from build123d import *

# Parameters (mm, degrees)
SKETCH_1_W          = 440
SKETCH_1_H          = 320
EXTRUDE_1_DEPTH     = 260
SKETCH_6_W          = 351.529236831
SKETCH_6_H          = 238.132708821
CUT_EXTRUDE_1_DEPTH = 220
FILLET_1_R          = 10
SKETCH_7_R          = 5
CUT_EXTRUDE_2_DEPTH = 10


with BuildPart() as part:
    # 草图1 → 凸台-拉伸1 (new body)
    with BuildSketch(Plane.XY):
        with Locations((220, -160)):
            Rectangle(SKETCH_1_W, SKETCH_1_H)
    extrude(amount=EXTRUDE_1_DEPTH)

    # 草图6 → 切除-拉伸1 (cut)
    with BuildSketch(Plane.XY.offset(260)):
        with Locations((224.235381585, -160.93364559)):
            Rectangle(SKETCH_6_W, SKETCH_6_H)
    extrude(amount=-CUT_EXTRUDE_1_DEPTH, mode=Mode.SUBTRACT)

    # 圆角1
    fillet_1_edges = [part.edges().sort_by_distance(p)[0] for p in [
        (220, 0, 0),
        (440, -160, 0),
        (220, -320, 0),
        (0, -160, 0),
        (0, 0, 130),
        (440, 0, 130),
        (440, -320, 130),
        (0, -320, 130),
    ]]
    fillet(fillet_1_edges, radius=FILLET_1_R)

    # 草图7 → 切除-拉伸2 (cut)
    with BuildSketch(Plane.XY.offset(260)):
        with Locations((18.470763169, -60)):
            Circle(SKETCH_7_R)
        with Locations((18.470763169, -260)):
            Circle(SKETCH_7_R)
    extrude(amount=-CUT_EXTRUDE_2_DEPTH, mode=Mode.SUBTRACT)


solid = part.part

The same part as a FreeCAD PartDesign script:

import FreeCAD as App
import Part
import Sketcher
Q = App.Units.Quantity


def edges_at(feature, points):
    """Names of the edges that pass closest to the given points."""
    edges = feature.Shape.Edges
    near = lambda p: min(range(len(edges)), key=lambda i: edges[i].distToShape(Part.Vertex(*p))[0])
    return sorted({f"Edge{near(p) + 1}" for p in points})

doc = App.newDocument("Part")
params = doc.addObject("Spreadsheet::Sheet", "Params")
for row, (alias, value) in enumerate([
    ("sketch1_width", "440 mm"),
    ("sketch1_height", "320 mm"),
    ("pad1_length", "260 mm"),
    ("pocket1_length", "220 mm"),
    ("fillet_radius", "10 mm"),
    ("sketch3_diameter", "10 mm"),
    ("pocket2_length", "10 mm"),
], start=1):
    params.set(f"A{row}", alias)
    params.set(f"B{row}", "=" + value)
    params.setAlias(f"B{row}", alias)

body = doc.addObject("PartDesign::Body", "Body")

# Sketch on XY plane
sketch1 = body.newObject("Sketcher::SketchObject", "Sketch")
sketch1.AttachmentSupport = (doc.getObject("XY_Plane"), [""])
sketch1.MapMode = "FlatFace"
sketch1.addGeometry(Part.LineSegment(App.Vector(0, 0, 0), App.Vector(0, -320, 0)), False)
sketch1.addGeometry(Part.LineSegment(App.Vector(0, -320, 0), App.Vector(440, -320, 0)), False)
sketch1.addGeometry(Part.LineSegment(App.Vector(440, -320, 0), App.Vector(440, 0, 0)), False)
sketch1.addGeometry(Part.LineSegment(App.Vector(440, 0, 0), App.Vector(0, 0, 0)), False)
sketch1.addConstraint(Sketcher.Constraint("Coincident", 0, 2, 1, 1))
sketch1.addConstraint(Sketcher.Constraint("Coincident", 1, 2, 2, 1))
sketch1.addConstraint(Sketcher.Constraint("Coincident", 2, 2, 3, 1))
sketch1.addConstraint(Sketcher.Constraint("Coincident", 3, 2, 0, 1))
sketch1.addConstraint(Sketcher.Constraint("Vertical", 0))
sketch1.addConstraint(Sketcher.Constraint("Horizontal", 1))
sketch1.addConstraint(Sketcher.Constraint("Vertical", 2))
sketch1.addConstraint(Sketcher.Constraint("Horizontal", 3))
sketch1.addConstraint(Sketcher.Constraint("Coincident", 3, 2, -1, 1))
sketch1.addConstraint(Sketcher.Constraint("DistanceX", 1, 1, 1, 2, Q("440 mm")))
sketch1.addConstraint(Sketcher.Constraint("DistanceY", 0, 2, 0, 1, Q("320 mm")))
sketch1.setExpression("Constraints[9]", "Params.sketch1_width")
sketch1.setExpression("Constraints[10]", "Params.sketch1_height")
pad1 = body.newObject("PartDesign::Pad", "Pad")
pad1.Profile = sketch1
pad1.setExpression("Length", "Params.pad1_length")

# Sketch on XY plane
sketch2 = body.newObject("Sketcher::SketchObject", "Sketch001")
sketch2.AttachmentSupport = (doc.getObject("XY_Plane"), [""])
sketch2.MapMode = "FlatFace"
sketch2.AttachmentOffset = App.Placement(App.Vector(0, 0, 260), App.Rotation())
sketch2.addGeometry(Part.LineSegment(App.Vector(48, -42, 0), App.Vector(48, -280, 0)), False)
sketch2.addGeometry(Part.LineSegment(App.Vector(48, -280, 0), App.Vector(400, -280, 0)), False)
sketch2.addGeometry(Part.LineSegment(App.Vector(400, -280, 0), App.Vector(400, -42, 0)), False)
sketch2.addGeometry(Part.LineSegment(App.Vector(400, -42, 0), App.Vector(48, -42, 0)), False)
sketch2.addConstraint(Sketcher.Constraint("Coincident", 0, 2, 1, 1))
sketch2.addConstraint(Sketcher.Constraint("Coincident", 1, 2, 2, 1))
sketch2.addConstraint(Sketcher.Constraint("Coincident", 2, 2, 3, 1))
sketch2.addConstraint(Sketcher.Constraint("Coincident", 3, 2, 0, 1))
sketch2.addConstraint(Sketcher.Constraint("Vertical", 0))
sketch2.addConstraint(Sketcher.Constraint("Horizontal", 1))
sketch2.addConstraint(Sketcher.Constraint("Vertical", 2))
sketch2.addConstraint(Sketcher.Constraint("Horizontal", 3))
sketch2.addConstraint(Sketcher.Constraint("DistanceY", 0, 2, -1, 1, Q("280 mm")))
sketch2.addConstraint(Sketcher.Constraint("DistanceX", -1, 1, 1, 2, Q("400 mm")))
sketch2.addConstraint(Sketcher.Constraint("DistanceY", 0, 2, 0, 1, Q("238.132709 mm")))
sketch2.addConstraint(Sketcher.Constraint("DistanceX", 1, 1, 1, 2, Q("351.529237 mm")))
pocket1 = body.newObject("PartDesign::Pocket", "Pocket")
pocket1.Profile = sketch2
pocket1.setExpression("Length", "Params.pocket1_length")
doc.recompute()

fillet = body.newObject("PartDesign::Fillet", "Fillet")
fillet.Base = (pocket1, edges_at(pocket1, [
    (220, 0, 0),
    (440, -160, 0),
    (220, -320, 0),
    (0, -160, 0),
    (0, 0, 130),
    (440, 0, 130),
    (440, -320, 130),
    (0, -320, 130),
]))
fillet.setExpression("Radius", "Params.fillet_radius")

# Sketch on XY plane
sketch3 = body.newObject("Sketcher::SketchObject", "Sketch002")
sketch3.AttachmentSupport = (doc.getObject("XY_Plane"), [""])
sketch3.MapMode = "FlatFace"
sketch3.AttachmentOffset = App.Placement(App.Vector(0, 0, 260), App.Rotation())
sketch3.addGeometry(Part.Circle(App.Vector(18, -60, 0), App.Vector(0, 0, 1), 5), False)
sketch3.addGeometry(Part.Circle(App.Vector(18, -260, 0), App.Vector(0, 0, 1), 5), False)
sketch3.addConstraint(Sketcher.Constraint("Equal", 0, 1))
sketch3.addConstraint(Sketcher.Constraint("Vertical", 0, 3, 1, 3))
sketch3.addConstraint(Sketcher.Constraint("Diameter", 0, Q("10 mm")))
sketch3.addConstraint(Sketcher.Constraint("DistanceY", 0, 3, -1, 1, Q("60 mm")))
sketch3.addConstraint(Sketcher.Constraint("DistanceY", 1, 3, -1, 1, Q("260 mm")))
sketch3.addConstraint(Sketcher.Constraint("DistanceX", -1, 1, 0, 3, Q("18.470763 mm")))
sketch3.setExpression("Constraints[2]", "Params.sketch3_diameter")
pocket2 = body.newObject("PartDesign::Pocket", "Pocket001")
pocket2.Profile = sketch3
pocket2.setExpression("Length", "Params.pocket2_length")

doc.recompute()
